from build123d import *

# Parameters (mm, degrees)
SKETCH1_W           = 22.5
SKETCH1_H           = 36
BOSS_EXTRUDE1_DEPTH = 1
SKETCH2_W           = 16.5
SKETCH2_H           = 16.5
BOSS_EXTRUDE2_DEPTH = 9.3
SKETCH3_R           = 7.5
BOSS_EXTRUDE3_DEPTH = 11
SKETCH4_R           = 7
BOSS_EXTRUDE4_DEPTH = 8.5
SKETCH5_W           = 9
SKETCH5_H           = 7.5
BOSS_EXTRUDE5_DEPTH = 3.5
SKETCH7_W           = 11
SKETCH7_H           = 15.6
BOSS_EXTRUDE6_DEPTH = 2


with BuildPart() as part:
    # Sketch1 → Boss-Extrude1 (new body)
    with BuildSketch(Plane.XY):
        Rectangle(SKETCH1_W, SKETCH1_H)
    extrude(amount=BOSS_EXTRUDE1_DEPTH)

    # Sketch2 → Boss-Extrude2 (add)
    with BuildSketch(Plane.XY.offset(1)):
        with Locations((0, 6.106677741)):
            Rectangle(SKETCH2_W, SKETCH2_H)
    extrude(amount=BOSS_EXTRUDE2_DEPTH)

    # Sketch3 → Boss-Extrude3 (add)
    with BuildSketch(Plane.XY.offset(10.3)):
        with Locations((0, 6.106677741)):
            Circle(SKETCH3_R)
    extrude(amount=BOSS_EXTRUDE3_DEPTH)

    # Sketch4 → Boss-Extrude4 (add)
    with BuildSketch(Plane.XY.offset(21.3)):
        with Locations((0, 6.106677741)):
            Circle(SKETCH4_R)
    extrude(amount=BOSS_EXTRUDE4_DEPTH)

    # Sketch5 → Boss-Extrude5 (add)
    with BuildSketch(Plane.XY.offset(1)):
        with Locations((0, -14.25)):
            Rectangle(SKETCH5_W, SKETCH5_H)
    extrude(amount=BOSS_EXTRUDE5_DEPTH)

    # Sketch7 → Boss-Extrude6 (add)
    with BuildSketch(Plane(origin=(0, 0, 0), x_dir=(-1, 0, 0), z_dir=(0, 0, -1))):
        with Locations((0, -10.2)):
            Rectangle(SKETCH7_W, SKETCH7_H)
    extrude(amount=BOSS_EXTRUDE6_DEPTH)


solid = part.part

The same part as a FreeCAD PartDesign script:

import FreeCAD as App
import Part
import Sketcher

V = App.Vector
Q = App.Units.Quantity


def add_polygon(sketch, points):
    """Adds a closed chain of lines whose ends are joined by coincident constraints."""
    first, n = sketch.GeometryCount, len(points)
    for a, b in zip(points, points[1:] + points[:1]):
        sketch.addGeometry(Part.LineSegment(App.Vector(*a, 0), App.Vector(*b, 0)), False)
    for i in range(n):
        sketch.addConstraint(Sketcher.Constraint("Coincident", first + i, 2, first + (i + 1) % n, 1))

doc = App.newDocument("Part")
body = doc.addObject("PartDesign::Body", "Body")

# Sketch on XY plane
sketch1 = doc.addObject("Sketcher::SketchObject", "Sketch")
body.addObject(sketch1)
sketch1.AttachmentSupport = (doc.XY_Plane, [""])
sketch1.MapMode = "FlatFace"
add_polygon(sketch1, [(-11, 18), (-11, -18), (11, -18), (11, 18)])  # lines 0-3
sketch1.addConstraint([
    Sketcher.Constraint("Vertical", 0),
    Sketcher.Constraint("Horizontal", 1),
    Sketcher.Constraint("Vertical", 2),
    Sketcher.Constraint("Horizontal", 3),
    Sketcher.Constraint("Symmetric", 0, 2, 2, 2, -1, 1),
    Sketcher.Constraint("DistanceY", 0, 2, 0, 1, Q("36 mm")),
    Sketcher.Constraint("DistanceX", 1, 1, 1, 2, Q("22.5 mm")),
])
pad1 = doc.addObject("PartDesign::Pad", "Pad")
body.addObject(pad1)
pad1.Profile = sketch1
pad1.Length = 1

# Sketch on XY plane
sketch2 = doc.addObject("Sketcher::SketchObject", "Sketch001")
body.addObject(sketch2)
sketch2.AttachmentSupport = (doc.XY_Plane, [""])
sketch2.MapMode = "FlatFace"
sketch2.AttachmentOffset = App.Placement(V(0, 0, 1), App.Rotation())
add_polygon(sketch2, [(-8, 14), (-8, -2), (8, -2), (8, 14)])  # lines 0-3
sketch2.addConstraint([
    Sketcher.Constraint("Vertical", 0),
    Sketcher.Constraint("Horizontal", 1),
    Sketcher.Constraint("Vertical", 2),
    Sketcher.Constraint("Horizontal", 3),
    Sketcher.Constraint("Equal", 3, 0),
    Sketcher.Constraint("DistanceX", 1, 1, 1, 2, Q("16.5 mm")),
    Sketcher.Constraint("DistanceX", 0, 2, -1, 1, Q("8.25 mm")),
    Sketcher.Constraint("DistanceY", 0, 2, -1, 1, Q("2.143322 mm")),
])
pad2 = doc.addObject("PartDesign::Pad", "Pad001")
body.addObject(pad2)
pad2.Profile = sketch2
pad2.Length = 9.3

# Sketch on XY plane
sketch3 = doc.addObject("Sketcher::SketchObject", "Sketch002")
body.addObject(sketch3)
sketch3.AttachmentSupport = (doc.XY_Plane, [""])
sketch3.MapMode = "FlatFace"
sketch3.AttachmentOffset = App.Placement(V(0, 0, 10.3), App.Rotation())
sketch3.addGeometry(Part.Circle(V(0, 6, 0), V(0, 0, 1), 8), False)
sketch3.addConstraint([
    Sketcher.Constraint("PointOnObject", 0, 3, -2),
    Sketcher.Constraint("Diameter", 0, Q("15 mm")),
    Sketcher.Constraint("DistanceY", -1, 1, 0, 3, Q("6.106678 mm")),
])
pad3 = doc.addObject("PartDesign::Pad", "Pad002")
body.addObject(pad3)
pad3.Profile = sketch3
pad3.Length = 11

# Sketch on XY plane
sketch4 = doc.addObject("Sketcher::SketchObject", "Sketch003")
body.addObject(sketch4)
sketch4.AttachmentSupport = (doc.XY_Plane, [""])
sketch4.MapMode = "FlatFace"
sketch4.AttachmentOffset = App.Placement(V(0, 0, 21.3), App.Rotation())
sketch4.addGeometry(Part.Circle(V(0, 6, 0), V(0, 0, 1), 7), False)
sketch4.addConstraint([
    Sketcher.Constraint("PointOnObject", 0, 3, -2),
    Sketcher.Constraint("Diameter", 0, Q("14 mm")),
    Sketcher.Constraint("DistanceY", -1, 1, 0, 3, Q("6.106678 mm")),
])
pad4 = doc.addObject("PartDesign::Pad", "Pad003")
body.addObject(pad4)
pad4.Profile = sketch4
pad4.Length = 8.5

# Sketch on XY plane
sketch5 = doc.addObject("Sketcher::SketchObject", "Sketch004")
body.addObject(sketch5)
sketch5.AttachmentSupport = (doc.XY_Plane, [""])
sketch5.MapMode = "FlatFace"
sketch5.AttachmentOffset = App.Placement(V(0, 0, 1), App.Rotation())
add_polygon(sketch5, [(-4, -10), (-4, -18), (4, -18), (4, -10)])  # lines 0-3
sketch5.addConstraint([
    Sketcher.Constraint("Vertical", 0),
    Sketcher.Constraint("Horizontal", 1),
    Sketcher.Constraint("Vertical", 2),
    Sketcher.Constraint("Horizontal", 3),
    Sketcher.Constraint("DistanceX", 1, 1, 1, 2, Q("9 mm")),
    Sketcher.Constraint("DistanceY", 0, 2, 0, 1, Q("7.5 mm")),
    Sketcher.Constraint("DistanceY", 0, 2, -1, 1, Q("18 mm")),
    Sketcher.Constraint("DistanceX", 0, 2, -1, 1, Q("4.5 mm")),
])
pad5 = doc.addObject("PartDesign::Pad", "Pad004")
body.addObject(pad5)
pad5.Profile = sketch5
pad5.Length = 3.5

# Sketch on XY plane
sketch6 = doc.addObject("Sketcher::SketchObject", "Sketch005")
body.addObject(sketch6)
sketch6.AttachmentSupport = (doc.XY_Plane, [""])
sketch6.MapMode = "FlatFace"
add_polygon(sketch6, [(6, -2), (6, -18), (-6, -18), (-6, -2)])  # lines 0-3
sketch6.addConstraint([
    Sketcher.Constraint("Vertical", 0),
    Sketcher.Constraint("Horizontal", 1),
    Sketcher.Constraint("Vertical", 2),
    Sketcher.Constraint("Horizontal", 3),
    Sketcher.Constraint("DistanceX", 1, 2, 1, 1, Q("11 mm")),
    Sketcher.Constraint("DistanceY", 0, 2, 0, 1, Q("15.6 mm")),
    Sketcher.Constraint("DistanceY", 0, 2, -1, 1, Q("18 mm")),
    Sketcher.Constraint("DistanceX", -1, 1, 0, 2, Q("5.5 mm")),
])
pad6 = doc.addObject("PartDesign::Pad", "Pad005")
body.addObject(pad6)
pad6.Profile = sketch6
pad6.Length = 2
pad6.Reversed = True

doc.recompute()
